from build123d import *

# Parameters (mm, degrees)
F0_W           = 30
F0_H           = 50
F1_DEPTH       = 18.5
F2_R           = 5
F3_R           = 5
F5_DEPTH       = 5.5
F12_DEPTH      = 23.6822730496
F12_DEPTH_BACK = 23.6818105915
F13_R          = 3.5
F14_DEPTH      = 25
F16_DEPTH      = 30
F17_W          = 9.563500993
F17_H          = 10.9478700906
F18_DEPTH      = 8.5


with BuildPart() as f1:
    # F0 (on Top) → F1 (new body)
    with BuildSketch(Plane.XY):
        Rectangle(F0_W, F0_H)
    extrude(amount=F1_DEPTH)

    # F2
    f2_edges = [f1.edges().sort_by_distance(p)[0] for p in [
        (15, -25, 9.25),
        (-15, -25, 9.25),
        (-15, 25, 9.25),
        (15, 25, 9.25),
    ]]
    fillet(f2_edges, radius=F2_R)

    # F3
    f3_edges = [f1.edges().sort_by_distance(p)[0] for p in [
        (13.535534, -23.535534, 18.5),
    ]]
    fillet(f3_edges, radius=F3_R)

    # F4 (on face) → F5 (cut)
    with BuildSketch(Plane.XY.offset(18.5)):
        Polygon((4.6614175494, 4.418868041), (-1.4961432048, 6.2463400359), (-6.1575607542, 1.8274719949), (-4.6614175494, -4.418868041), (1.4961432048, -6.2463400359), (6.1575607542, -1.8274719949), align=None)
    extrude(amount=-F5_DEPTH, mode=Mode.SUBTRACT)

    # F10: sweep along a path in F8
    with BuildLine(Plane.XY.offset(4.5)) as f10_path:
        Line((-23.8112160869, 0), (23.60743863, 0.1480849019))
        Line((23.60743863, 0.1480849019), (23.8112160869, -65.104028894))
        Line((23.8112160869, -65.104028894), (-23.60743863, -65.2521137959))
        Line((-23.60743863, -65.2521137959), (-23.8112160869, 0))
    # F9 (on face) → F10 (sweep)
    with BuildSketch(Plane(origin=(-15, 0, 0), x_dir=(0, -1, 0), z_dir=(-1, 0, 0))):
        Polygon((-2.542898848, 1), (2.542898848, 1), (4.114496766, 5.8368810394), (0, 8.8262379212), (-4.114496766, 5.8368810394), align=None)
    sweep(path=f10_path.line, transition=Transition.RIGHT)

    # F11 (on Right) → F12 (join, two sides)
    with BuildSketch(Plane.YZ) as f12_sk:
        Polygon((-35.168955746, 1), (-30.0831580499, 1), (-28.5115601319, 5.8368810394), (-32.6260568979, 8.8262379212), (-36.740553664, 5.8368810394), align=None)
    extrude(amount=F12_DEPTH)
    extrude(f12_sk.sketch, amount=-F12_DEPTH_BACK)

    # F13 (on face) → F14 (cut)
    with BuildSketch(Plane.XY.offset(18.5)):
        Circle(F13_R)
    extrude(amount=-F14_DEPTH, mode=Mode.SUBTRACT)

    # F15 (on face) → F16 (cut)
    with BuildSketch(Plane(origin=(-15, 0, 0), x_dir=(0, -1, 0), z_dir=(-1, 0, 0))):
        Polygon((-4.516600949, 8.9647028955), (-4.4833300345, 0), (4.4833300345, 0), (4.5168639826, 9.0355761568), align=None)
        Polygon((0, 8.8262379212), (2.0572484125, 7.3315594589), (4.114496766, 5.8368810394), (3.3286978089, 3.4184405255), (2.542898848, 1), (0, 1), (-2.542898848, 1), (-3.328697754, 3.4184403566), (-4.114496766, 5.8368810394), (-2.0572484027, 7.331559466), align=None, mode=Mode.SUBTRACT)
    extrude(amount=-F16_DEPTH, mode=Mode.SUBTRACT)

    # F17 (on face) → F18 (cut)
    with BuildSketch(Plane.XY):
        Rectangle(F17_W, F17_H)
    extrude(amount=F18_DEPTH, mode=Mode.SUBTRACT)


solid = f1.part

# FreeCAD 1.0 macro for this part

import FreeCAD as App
import Part
import Sketcher
Q = App.Units.Quantity


def edges_at(feature, points):
    """Names of the edges that pass closest to the given points."""
    edges = feature.Shape.Edges
    near = lambda p: min(range(len(edges)), key=lambda i: edges[i].distToShape(Part.Vertex(*p))[0])
    return sorted({f"Edge{near(p) + 1}" for p in points})


def add_polygon(sketch, points):
    """Adds a closed chain of lines whose ends are joined by coincident constraints."""
    first, n = sketch.GeometryCount, len(points)
    for a, b in zip(points, points[1:] + points[:1]):
        sketch.addGeometry(Part.LineSegment(App.Vector(*a, 0), App.Vector(*b, 0)), False)
    for i in range(n):
        sketch.addConstraint(Sketcher.Constraint("Coincident", first + i, 2, first + (i + 1) % n, 1))

doc = App.newDocument("Part")
body = doc.addObject("PartDesign::Body", "Body")
body.AllowCompound = True

sketch1 = body.newObject("Sketcher::SketchObject", "Sketch")
sketch1.AttachmentSupport = (doc.getObject("XY_Plane"), [""])
sketch1.MapMode = "FlatFace"
add_polygon(sketch1, [(-15, 25), (-15, -25), (15, -25), (15, 25)])
sketch1.addConstraint(Sketcher.Constraint("Vertical", 0))
sketch1.addConstraint(Sketcher.Constraint("Horizontal", 1))
sketch1.addConstraint(Sketcher.Constraint("Vertical", 2))
sketch1.addConstraint(Sketcher.Constraint("Horizontal", 3))
sketch1.addConstraint(Sketcher.Constraint("Symmetric", 0, 2, 2, 2, -1, 1))
sketch1.addConstraint(Sketcher.Constraint("DistanceX", 1, 1, 1, 2, 30.0))
sketch1.addConstraint(Sketcher.Constraint("DistanceY", 0, 2, 0, 1, 50.0))
pad1 = body.newObject("PartDesign::Pad", "Pad")
pad1.Profile = sketch1
pad1.Length = 18.5
doc.recompute()

fillet = body.newObject("PartDesign::Fillet", "Fillet")
fillet.Base = (pad1, edges_at(pad1, [
    (15, -25, 9.25),
    (-15, -25, 9.25),
    (-15, 25, 9.25),
    (15, 25, 9.25),
]))
fillet.Radius = 5
doc.recompute()

fillet2 = body.newObject("PartDesign::Fillet", "Fillet001")
fillet2.Base = (fillet, edges_at(fillet, [(13.536, -23.536, 18.5)]))
fillet2.Radius = 5

sketch2 = body.newObject("Sketcher::SketchObject", "Sketch001")
sketch2.AttachmentSupport = (doc.getObject("XY_Plane"), [""])
sketch2.MapMode = "FlatFace"
sketch2.AttachmentOffset = App.Placement(App.Vector(0, 0, 18.5), App.Rotation())
add_polygon(sketch2, [(5, 4), (-1, 6), (-6, 2), (-5, -4), (1, -6), (6, -2)])
sketch2.addConstraint(Sketcher.Constraint("Symmetric", 0, 2, 3, 2, -1, 1))
sketch2.addConstraint(Sketcher.Constraint("Symmetric", 1, 2, 4, 2, -1, 1))
sketch2.addConstraint(Sketcher.Constraint("Symmetric", 2, 2, 5, 2, -1, 1))
sketch2.addConstraint(Sketcher.Constraint("Equal", 0, 1))
sketch2.addConstraint(Sketcher.Constraint("Equal", 1, 2))
sketch2.addConstraint(Sketcher.Constraint("Distance", 0, 6.423022))
sketch2.addConstraint(Sketcher.Constraint("DistanceY", -1, 1, 0, 2, 6.24634))
sketch2.addConstraint(Sketcher.Constraint("DistanceX", 1, 2, -1, 1, 6.157561))
sketch2.addConstraint(Sketcher.Constraint("DistanceY", -1, 1, 1, 2, 1.827472))
pocket1 = body.newObject("PartDesign::Pocket", "Pocket")
pocket1.Profile = sketch2
pocket1.Length = 5.5

sketch3 = body.newObject("Sketcher::SketchObject", "Sketch002")
sketch3.AttachmentSupport = (doc.getObject("YZ_Plane"), [""])
sketch3.MapMode = "FlatFace"
sketch3.AttachmentOffset = App.Placement(App.Vector(0, 0, -15), App.Rotation())
add_polygon(sketch3, [(3, 1), (-3, 1), (-4, 6), (0, 9), (4, 6)])
sketch3.addConstraint(Sketcher.Constraint("Horizontal", 0))
sketch3.addConstraint(Sketcher.Constraint("Symmetric", 1, 2, 3, 2, -2))
sketch3.addConstraint(Sketcher.Constraint("PointOnObject", 2, 2, -2))
sketch3.addConstraint(Sketcher.Constraint("Equal", 1, 2))
sketch3.addConstraint(Sketcher.Constraint("Equal", 3, 4))
sketch3.addConstraint(Sketcher.Constraint("Angle", 1, Q("108 deg")))
sketch3.addConstraint(Sketcher.Constraint("Angle", 2, Q("36 deg")))
sketch3.addConstraint(Sketcher.Constraint("DistanceY", -1, 1, 0, 2, 1.0))
sketch3.addConstraint(Sketcher.Constraint("DistanceX", 0, 2, -1, 1, 2.542899))

sketch4 = body.newObject("Sketcher::SketchObject", "Sketch003")
sketch4.AttachmentSupport = (doc.getObject("XY_Plane"), [""])
sketch4.MapMode = "FlatFace"
sketch4.AttachmentOffset = App.Placement(App.Vector(0, 0, 4.5), App.Rotation())
add_polygon(sketch4, [(-24, 0), (24, 0), (24, -65), (-24, -65)])
sketch4.addConstraint(Sketcher.Constraint("PointOnObject", 3, 2, -1))
sketch4.addConstraint(Sketcher.Constraint("Perpendicular", 0, 1))
sketch4.addConstraint(Sketcher.Constraint("Perpendicular", 1, 2))
sketch4.addConstraint(Sketcher.Constraint("Perpendicular", 2, 3))
sketch4.addConstraint(Sketcher.Constraint("DistanceY", 2, 2, 0, 2, 65.400199))
sketch4.addConstraint(Sketcher.Constraint("Distance", 1, 65.252432))
sketch4.addConstraint(Sketcher.Constraint("DistanceX", -1, 1, 0, 2, 23.607439))
sketch4.addConstraint(Sketcher.Constraint("DistanceX", 2, 2, -1, 1, 23.607439))
doc.recompute()

additivepipe = body.newObject("PartDesign::AdditivePipe", "AdditivePipe")
additivepipe.Profile = sketch3
additivepipe.Spine = (sketch4, ["Edge1", "Edge2", "Edge3", "Edge4"])
additivepipe.Transition = "Right corner"

sketch5 = body.newObject("Sketcher::SketchObject", "Sketch004")
sketch5.AttachmentSupport = (doc.getObject("YZ_Plane"), [""])
sketch5.MapMode = "FlatFace"
add_polygon(sketch5, [(-35, 1), (-30, 1), (-29, 6), (-33, 9), (-37, 6)])
sketch5.addConstraint(Sketcher.Constraint("Horizontal", 0))
sketch5.addConstraint(Sketcher.Constraint("Horizontal", 1, 2, 3, 2))
sketch5.addConstraint(Sketcher.Constraint("Equal", 1, 2))
sketch5.addConstraint(Sketcher.Constraint("Equal", 2, 3))
sketch5.addConstraint(Sketcher.Constraint("Equal", 3, 4))
sketch5.addConstraint(Sketcher.Constraint("Angle", 1, Q("72 deg")))
sketch5.addConstraint(Sketcher.Constraint("Angle", 2, Q("144 deg")))
sketch5.addConstraint(Sketcher.Constraint("DistanceY", -1, 1, 0, 2, 1.0))
sketch5.addConstraint(Sketcher.Constraint("DistanceX", 2, 2, 0, 2, 2.542899))
sketch5.addConstraint(Sketcher.Constraint("DistanceX", 0, 2, -1, 1, 30.083158))
pad2 = body.newObject("PartDesign::Pad", "Pad001")
pad2.Profile = sketch5
pad2.Type = "TwoLengths"
pad2.Length = 23.682273
pad2.Length2 = 23.681811

sketch6 = body.newObject("Sketcher::SketchObject", "Sketch005")
sketch6.AttachmentSupport = (doc.getObject("XY_Plane"), [""])
sketch6.MapMode = "FlatFace"
sketch6.AttachmentOffset = App.Placement(App.Vector(0, 0, 18.5), App.Rotation())
sketch6.addGeometry(Part.Circle(App.Vector(0, 0, 0), App.Vector(0, 0, 1), 3.5), False)
sketch6.addConstraint(Sketcher.Constraint("Coincident", 0, 3, -1, 1))
sketch6.addConstraint(Sketcher.Constraint("Diameter", 0, 7.0))
pocket2 = body.newObject("PartDesign::Pocket", "Pocket001")
pocket2.Profile = sketch6
pocket2.Length = 25

sketch7 = body.newObject("Sketcher::SketchObject", "Sketch006")
sketch7.AttachmentSupport = (doc.getObject("YZ_Plane"), [""])
sketch7.MapMode = "FlatFace"
sketch7.AttachmentOffset = App.Placement(App.Vector(0, 0, -15), App.Rotation())
add_polygon(sketch7, [(4.5, 9), (4.5, 0), (-4.5, 0), (-4.5, 9)])
add_polygon(sketch7, [(2.1, 7.3), (0, 8.8), (-2.1, 7.3), (-4.1, 5.8), (-3.3, 3.4), (-2.5, 1), (2.5, 1), (3.3, 3.4), (4.1, 5.8)])
sketch7.addConstraint(Sketcher.Constraint("Horizontal", 1))
sketch7.addConstraint(Sketcher.Constraint("Horizontal", 9))
sketch7.addConstraint(Sketcher.Constraint("Symmetric", 0, 2, 1, 2, -1, 1))
sketch7.addConstraint(Sketcher.Constraint("Symmetric", 7, 2, 10, 2, -2))
sketch7.addConstraint(Sketcher.Constraint("Symmetric", 6, 2, 11, 2, -2))
sketch7.addConstraint(Sketcher.Constraint("Symmetric", 5, 2, 12, 2, -2))
sketch7.addConstraint(Sketcher.Constraint("PointOnObject", 4, 2, -2))
sketch7.addConstraint(Sketcher.Constraint("Parallel", 5, 6))
sketch7.addConstraint(Sketcher.Constraint("Parallel", 7, 8))
sketch7.addConstraint(Sketcher.Constraint("Parallel", 10, 11))
sketch7.addConstraint(Sketcher.Constraint("Equal", 5, 6))
sketch7.addConstraint(Sketcher.Constraint("Equal", 6, 7))
sketch7.addConstraint(Sketcher.Constraint("Equal", 7, 8))
sketch7.addConstraint(Sketcher.Constraint("Angle", 4, Q("144 deg")))
sketch7.addConstraint(Sketcher.Constraint("Angle", 7, Q("-72 deg")))
sketch7.addConstraint(Sketcher.Constraint("DistanceY", -1, 1, 8, 2, 1.0))
sketch7.addConstraint(Sketcher.Constraint("Distance", 4, 2.542899))
sketch7.addConstraint(Sketcher.Constraint("DistanceX", 1, 2, 1, 1, 8.96666))
sketch7.addConstraint(Sketcher.Constraint("DistanceX", -1, 1, 3, 2, 4.516601))
sketch7.addConstraint(Sketcher.Constraint("Distance", 2, 9.035638))
sketch7.addConstraint(Sketcher.Constraint("DistanceY", 6, 2, 3, 2, 3.127822))
sketch7.addConstraint(Sketcher.Constraint("Distance", 3, 9.033743))
pocket3 = body.newObject("PartDesign::Pocket", "Pocket002")
pocket3.Profile = sketch7
pocket3.Length = 30
pocket3.Reversed = True

sketch8 = body.newObject("Sketcher::SketchObject", "Sketch007")
sketch8.AttachmentSupport = (doc.getObject("XY_Plane"), [""])
sketch8.MapMode = "FlatFace"
add_polygon(sketch8, [(-5, 5), (-5, -5), (5, -5), (5, 5)])
sketch8.addConstraint(Sketcher.Constraint("Vertical", 0))
sketch8.addConstraint(Sketcher.Constraint("Horizontal", 1))
sketch8.addConstraint(Sketcher.Constraint("Vertical", 2))
sketch8.addConstraint(Sketcher.Constraint("Horizontal", 3))
sketch8.addConstraint(Sketcher.Constraint("Symmetric", 0, 2, 2, 2, -1, 1))
sketch8.addConstraint(Sketcher.Constraint("DistanceX", 1, 1, 1, 2, 9.563501))
sketch8.addConstraint(Sketcher.Constraint("DistanceY", 0, 2, 0, 1, 10.94787))
pocket4 = body.newObject("PartDesign::Pocket", "Pocket003")
pocket4.Profile = sketch8
pocket4.Length = 8.5
pocket4.Reversed = True

doc.recompute()
